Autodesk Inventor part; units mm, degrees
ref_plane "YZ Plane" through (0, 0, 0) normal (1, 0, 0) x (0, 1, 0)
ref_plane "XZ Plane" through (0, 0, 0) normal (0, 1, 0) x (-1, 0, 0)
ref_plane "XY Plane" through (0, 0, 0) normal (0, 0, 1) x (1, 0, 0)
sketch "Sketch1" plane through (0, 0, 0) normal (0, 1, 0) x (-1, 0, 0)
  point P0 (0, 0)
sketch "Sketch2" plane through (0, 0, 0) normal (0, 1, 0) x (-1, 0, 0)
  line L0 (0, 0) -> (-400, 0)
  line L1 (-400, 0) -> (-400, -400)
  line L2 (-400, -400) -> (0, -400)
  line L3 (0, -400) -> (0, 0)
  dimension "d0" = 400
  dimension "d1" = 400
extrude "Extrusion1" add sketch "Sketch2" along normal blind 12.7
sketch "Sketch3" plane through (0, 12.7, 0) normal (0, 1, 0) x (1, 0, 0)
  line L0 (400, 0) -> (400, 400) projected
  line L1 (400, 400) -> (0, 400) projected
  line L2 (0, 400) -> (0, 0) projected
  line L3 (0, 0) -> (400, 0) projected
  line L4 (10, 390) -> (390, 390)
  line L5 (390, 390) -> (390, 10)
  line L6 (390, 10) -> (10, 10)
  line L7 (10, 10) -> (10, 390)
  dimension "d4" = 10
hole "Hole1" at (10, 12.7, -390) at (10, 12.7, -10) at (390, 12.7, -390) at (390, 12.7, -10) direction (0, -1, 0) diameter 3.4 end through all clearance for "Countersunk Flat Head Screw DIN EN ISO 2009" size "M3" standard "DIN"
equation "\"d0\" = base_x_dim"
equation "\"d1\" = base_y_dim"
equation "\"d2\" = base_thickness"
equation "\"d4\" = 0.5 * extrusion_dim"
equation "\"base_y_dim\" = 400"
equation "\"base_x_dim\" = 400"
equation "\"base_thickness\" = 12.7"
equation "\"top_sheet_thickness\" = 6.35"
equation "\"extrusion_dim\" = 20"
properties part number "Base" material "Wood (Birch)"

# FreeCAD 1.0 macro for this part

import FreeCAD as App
import Part
import Sketcher

V = App.Vector

doc = App.newDocument("Part")
params = doc.addObject("Spreadsheet::Sheet", "Params")
for row, (alias, value) in enumerate([
    ("sketch1_width", "400 mm"),
    ("pad1_length", "12.7 mm"),
    ("sketch2_diameter", "3.4 mm"),
    ("hole_diameter", "3.4 mm"),
], start=1):
    params.set(f"A{row}", alias)
    params.set(f"B{row}", "=" + value)
    params.setAlias(f"B{row}", alias)

body = doc.addObject("PartDesign::Body", "Body")

# Sketch on XZ plane
sketch1 = body.newObject("Sketcher::SketchObject", "Sketch")
sketch1.AttachmentSupport = (doc.getObject("XZ_Plane"), [""])
sketch1.MapMode = "FlatFace"
sketch1.addGeometry([
    Part.LineSegment(V(0, -400, 0), V(0, 0, 0)),
    Part.LineSegment(V(0, 0, 0), V(400, 0, 0)),
    Part.LineSegment(V(400, 0, 0), V(400, -400, 0)),
    Part.LineSegment(V(400, -400, 0), V(0, -400, 0)),
], False)
sketch1.addConstraint([
    Sketcher.Constraint("Coincident", 0, 2, 1, 1),
    Sketcher.Constraint("Coincident", 1, 2, 2, 1),
    Sketcher.Constraint("Coincident", 2, 2, 3, 1),
    Sketcher.Constraint("Coincident", 3, 2, 0, 1),
    Sketcher.Constraint("Vertical", 0),
    Sketcher.Constraint("Horizontal", 1),
    Sketcher.Constraint("Vertical", 2),
    Sketcher.Constraint("Horizontal", 3),
    Sketcher.Constraint("Coincident", 0, 2, -1, 1),
    Sketcher.Constraint("Equal", 3, 0),
    Sketcher.Constraint("DistanceX", 1, 1, 1, 2, 400.0),
])
sketch1.setExpression("Constraints[10]", "Params.sketch1_width")
pad1 = body.newObject("PartDesign::Pad", "Pad")
pad1.Profile = sketch1
pad1.setExpression("Length", "Params.pad1_length")
pad1.Reversed = True

# Sketch on XZ plane
sketch2 = body.newObject("Sketcher::SketchObject", "Sketch001")
sketch2.AttachmentSupport = (doc.getObject("XZ_Plane"), [""])
sketch2.MapMode = "FlatFace"
sketch2.AttachmentOffset = App.Placement(V(0, 0, -12.7), App.Rotation())
sketch2.addGeometry([
    Part.Circle(V(10, -390, 0), V(0, 0, 1), 1.7),
    Part.Circle(V(10, -10, 0), V(0, 0, 1), 1.7),
    Part.Circle(V(390, -390, 0), V(0, 0, 1), 1.7),
    Part.Circle(V(390, -10, 0), V(0, 0, 1), 1.7),
], False)
sketch2.addConstraint([
    Sketcher.Constraint("Equal", 0, 1),
    Sketcher.Constraint("Equal", 1, 2),
    Sketcher.Constraint("Equal", 2, 3),
    Sketcher.Constraint("Horizontal", 0, 3, 2, 3),
    Sketcher.Constraint("Horizontal", 1, 3, 3, 3),
    Sketcher.Constraint("Vertical", 0, 3, 1, 3),
    Sketcher.Constraint("Vertical", 2, 3, 3, 3),
    Sketcher.Constraint("Diameter", 0, 3.4),
    Sketcher.Constraint("DistanceX", -1, 1, 0, 3, 10.0),
    Sketcher.Constraint("DistanceY", 0, 3, -1, 1, 390.0),
    Sketcher.Constraint("DistanceY", 1, 3, -1, 1, 10.0),
    Sketcher.Constraint("DistanceX", -1, 1, 2, 3, 390.0),
])
sketch2.setExpression("Constraints[7]", "Params.sketch2_diameter")
doc.recompute()
hole = body.newObject("PartDesign::Hole", "Hole")
hole.Profile = sketch2
hole.ThreadType = "None"
hole.setExpression("Diameter", "Params.hole_diameter")
hole.DepthType = "ThroughAll"
hole.Reversed = True

doc.recompute()
